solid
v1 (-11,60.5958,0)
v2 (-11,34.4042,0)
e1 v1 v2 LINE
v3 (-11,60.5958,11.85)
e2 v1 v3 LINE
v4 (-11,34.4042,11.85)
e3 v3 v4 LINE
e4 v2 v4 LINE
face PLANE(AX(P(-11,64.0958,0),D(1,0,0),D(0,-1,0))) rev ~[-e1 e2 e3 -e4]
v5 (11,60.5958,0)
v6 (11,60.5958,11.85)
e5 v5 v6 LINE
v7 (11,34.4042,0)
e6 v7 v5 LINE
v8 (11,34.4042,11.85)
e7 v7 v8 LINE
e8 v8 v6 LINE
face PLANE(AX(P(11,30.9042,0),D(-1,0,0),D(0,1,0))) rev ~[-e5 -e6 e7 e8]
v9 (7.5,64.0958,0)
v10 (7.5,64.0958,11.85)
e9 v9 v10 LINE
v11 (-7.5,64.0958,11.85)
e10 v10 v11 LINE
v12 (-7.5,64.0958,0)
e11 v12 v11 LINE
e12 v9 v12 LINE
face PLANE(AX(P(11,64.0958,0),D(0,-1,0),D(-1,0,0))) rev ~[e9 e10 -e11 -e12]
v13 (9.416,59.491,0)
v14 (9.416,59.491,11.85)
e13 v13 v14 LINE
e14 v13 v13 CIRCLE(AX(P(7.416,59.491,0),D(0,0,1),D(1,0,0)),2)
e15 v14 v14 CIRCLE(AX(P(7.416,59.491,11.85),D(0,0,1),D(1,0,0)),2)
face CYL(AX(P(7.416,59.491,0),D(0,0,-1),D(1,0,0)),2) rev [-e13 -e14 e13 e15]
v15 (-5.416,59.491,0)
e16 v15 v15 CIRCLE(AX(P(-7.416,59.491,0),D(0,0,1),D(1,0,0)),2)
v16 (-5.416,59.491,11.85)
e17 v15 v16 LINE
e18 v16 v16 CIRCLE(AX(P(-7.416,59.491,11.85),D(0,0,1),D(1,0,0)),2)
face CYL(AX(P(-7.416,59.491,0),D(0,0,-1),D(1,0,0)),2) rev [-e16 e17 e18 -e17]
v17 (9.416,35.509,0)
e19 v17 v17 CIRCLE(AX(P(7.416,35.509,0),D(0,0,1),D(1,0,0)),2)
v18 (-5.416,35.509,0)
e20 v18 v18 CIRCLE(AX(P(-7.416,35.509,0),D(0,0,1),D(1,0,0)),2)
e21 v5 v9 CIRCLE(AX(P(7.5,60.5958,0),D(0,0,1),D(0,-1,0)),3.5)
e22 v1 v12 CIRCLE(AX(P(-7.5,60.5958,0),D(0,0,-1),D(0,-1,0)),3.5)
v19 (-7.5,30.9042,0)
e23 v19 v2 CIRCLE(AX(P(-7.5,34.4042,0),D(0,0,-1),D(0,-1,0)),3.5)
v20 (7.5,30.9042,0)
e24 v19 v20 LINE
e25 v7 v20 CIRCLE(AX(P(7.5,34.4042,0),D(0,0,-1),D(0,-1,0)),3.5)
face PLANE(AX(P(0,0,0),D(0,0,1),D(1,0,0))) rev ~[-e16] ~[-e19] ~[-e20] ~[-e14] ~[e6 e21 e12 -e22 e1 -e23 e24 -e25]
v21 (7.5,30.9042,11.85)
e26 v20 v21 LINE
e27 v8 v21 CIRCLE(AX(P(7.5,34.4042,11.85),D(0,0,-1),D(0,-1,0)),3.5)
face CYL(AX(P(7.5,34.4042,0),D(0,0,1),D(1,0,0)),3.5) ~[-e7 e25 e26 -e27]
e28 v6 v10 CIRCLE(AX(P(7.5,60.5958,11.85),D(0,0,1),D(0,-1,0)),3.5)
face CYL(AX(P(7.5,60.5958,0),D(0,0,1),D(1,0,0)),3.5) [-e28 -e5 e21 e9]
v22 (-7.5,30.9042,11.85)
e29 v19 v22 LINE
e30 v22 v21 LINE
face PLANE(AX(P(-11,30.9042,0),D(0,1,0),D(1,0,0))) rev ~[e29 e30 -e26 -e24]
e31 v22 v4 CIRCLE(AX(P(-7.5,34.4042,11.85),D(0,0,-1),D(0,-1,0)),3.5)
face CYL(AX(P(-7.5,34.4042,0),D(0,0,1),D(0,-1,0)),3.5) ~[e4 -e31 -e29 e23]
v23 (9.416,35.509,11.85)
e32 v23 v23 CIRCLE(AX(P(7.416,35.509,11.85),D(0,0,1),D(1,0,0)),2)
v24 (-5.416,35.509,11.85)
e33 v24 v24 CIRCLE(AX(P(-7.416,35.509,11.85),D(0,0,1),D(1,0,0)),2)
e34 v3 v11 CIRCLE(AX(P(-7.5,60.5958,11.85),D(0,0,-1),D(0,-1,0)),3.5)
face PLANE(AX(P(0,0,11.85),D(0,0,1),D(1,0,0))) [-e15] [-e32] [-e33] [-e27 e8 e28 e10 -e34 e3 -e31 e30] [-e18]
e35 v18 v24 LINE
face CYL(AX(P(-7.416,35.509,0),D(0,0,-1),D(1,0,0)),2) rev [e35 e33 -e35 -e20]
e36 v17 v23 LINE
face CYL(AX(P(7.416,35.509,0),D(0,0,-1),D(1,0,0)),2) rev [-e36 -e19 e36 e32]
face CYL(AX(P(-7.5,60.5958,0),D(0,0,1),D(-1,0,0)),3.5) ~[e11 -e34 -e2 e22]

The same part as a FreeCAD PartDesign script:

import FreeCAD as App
import Part
import Sketcher


def edges_at(feature, points):
    """Names of the edges that pass closest to the given points."""
    edges = feature.Shape.Edges
    near = lambda p: min(range(len(edges)), key=lambda i: edges[i].distToShape(Part.Vertex(*p))[0])
    return sorted({f"Edge{near(p) + 1}" for p in points})

doc = App.newDocument("Part")
body = doc.addObject("PartDesign::Body", "Body")

# Sketch on XY plane
sketch1 = body.newObject("Sketcher::SketchObject", "Sketch")
sketch1.AttachmentSupport = (doc.getObject("XY_Plane"), [""])
sketch1.MapMode = "FlatFace"
sketch1.addGeometry(Part.LineSegment(App.Vector(11, 30.9042, 0), App.Vector(11, 64.0958, 0)), False)
sketch1.addGeometry(Part.LineSegment(App.Vector(11, 64.0958, 0), App.Vector(-11, 64.0958, 0)), False)
sketch1.addGeometry(Part.LineSegment(App.Vector(-11, 64.0958, 0), App.Vector(-11, 30.9042, 0)), False)
sketch1.addGeometry(Part.LineSegment(App.Vector(-11, 30.9042, 0), App.Vector(11, 30.9042, 0)), False)
sketch1.addGeometry(Part.Circle(App.Vector(-7.416, 35.509, 0), App.Vector(0, 0, 1), 2), False)
sketch1.addGeometry(Part.Circle(App.Vector(7.416, 35.509, 0), App.Vector(0, 0, 1), 2), False)
sketch1.addGeometry(Part.Circle(App.Vector(-7.416, 59.491, 0), App.Vector(0, 0, 1), 2), False)
sketch1.addGeometry(Part.Circle(App.Vector(7.416, 59.491, 0), App.Vector(0, 0, 1), 2), False)
sketch1.addConstraint(Sketcher.Constraint("Coincident", 0, 2, 1, 1))
sketch1.addConstraint(Sketcher.Constraint("Coincident", 1, 2, 2, 1))
sketch1.addConstraint(Sketcher.Constraint("Coincident", 2, 2, 3, 1))
sketch1.addConstraint(Sketcher.Constraint("Coincident", 3, 2, 0, 1))
sketch1.addConstraint(Sketcher.Constraint("Vertical", 0))
sketch1.addConstraint(Sketcher.Constraint("Horizontal", 1))
sketch1.addConstraint(Sketcher.Constraint("Vertical", 2))
sketch1.addConstraint(Sketcher.Constraint("Horizontal", 3))
sketch1.addConstraint(Sketcher.Constraint("Equal", 4, 5))
sketch1.addConstraint(Sketcher.Constraint("Equal", 5, 6))
sketch1.addConstraint(Sketcher.Constraint("Equal", 6, 7))
sketch1.addConstraint(Sketcher.Constraint("Symmetric", 4, 3, 5, 3, -2))
sketch1.addConstraint(Sketcher.Constraint("Symmetric", 6, 3, 7, 3, -2))
sketch1.addConstraint(Sketcher.Constraint("Vertical", 4, 3, 6, 3))
sketch1.addConstraint(Sketcher.Constraint("DistanceX", 1, 2, 1, 1, 22.0))
sketch1.addConstraint(Sketcher.Constraint("Diameter", 4, 4.0))
sketch1.addConstraint(Sketcher.Constraint("DistanceX", -1, 1, 0, 2, 11.0))
sketch1.addConstraint(Sketcher.Constraint("DistanceY", 0, 1, 0, 2, 33.1916))
sketch1.addConstraint(Sketcher.Constraint("DistanceX", 4, 3, -1, 1, 7.416))
sketch1.addConstraint(Sketcher.Constraint("DistanceY", -1, 1, 4, 3, 35.509))
sketch1.addConstraint(Sketcher.Constraint("DistanceY", -1, 1, 6, 3, 59.491))
sketch1.addConstraint(Sketcher.Constraint("DistanceY", -1, 1, 0, 2, 64.0958))
pad1 = body.newObject("PartDesign::Pad", "Pad")
pad1.Profile = sketch1
pad1.Length = 11.85
doc.recompute()

fillet = body.newObject("PartDesign::Fillet", "Fillet")
fillet.Base = (pad1, edges_at(pad1, [
    (-11, 30.904, 5.925),
    (11, 30.904, 5.925),
    (11, 64.096, 5.925),
    (-11, 64.096, 5.925),
]))
fillet.Radius = 3.5

doc.recompute()
